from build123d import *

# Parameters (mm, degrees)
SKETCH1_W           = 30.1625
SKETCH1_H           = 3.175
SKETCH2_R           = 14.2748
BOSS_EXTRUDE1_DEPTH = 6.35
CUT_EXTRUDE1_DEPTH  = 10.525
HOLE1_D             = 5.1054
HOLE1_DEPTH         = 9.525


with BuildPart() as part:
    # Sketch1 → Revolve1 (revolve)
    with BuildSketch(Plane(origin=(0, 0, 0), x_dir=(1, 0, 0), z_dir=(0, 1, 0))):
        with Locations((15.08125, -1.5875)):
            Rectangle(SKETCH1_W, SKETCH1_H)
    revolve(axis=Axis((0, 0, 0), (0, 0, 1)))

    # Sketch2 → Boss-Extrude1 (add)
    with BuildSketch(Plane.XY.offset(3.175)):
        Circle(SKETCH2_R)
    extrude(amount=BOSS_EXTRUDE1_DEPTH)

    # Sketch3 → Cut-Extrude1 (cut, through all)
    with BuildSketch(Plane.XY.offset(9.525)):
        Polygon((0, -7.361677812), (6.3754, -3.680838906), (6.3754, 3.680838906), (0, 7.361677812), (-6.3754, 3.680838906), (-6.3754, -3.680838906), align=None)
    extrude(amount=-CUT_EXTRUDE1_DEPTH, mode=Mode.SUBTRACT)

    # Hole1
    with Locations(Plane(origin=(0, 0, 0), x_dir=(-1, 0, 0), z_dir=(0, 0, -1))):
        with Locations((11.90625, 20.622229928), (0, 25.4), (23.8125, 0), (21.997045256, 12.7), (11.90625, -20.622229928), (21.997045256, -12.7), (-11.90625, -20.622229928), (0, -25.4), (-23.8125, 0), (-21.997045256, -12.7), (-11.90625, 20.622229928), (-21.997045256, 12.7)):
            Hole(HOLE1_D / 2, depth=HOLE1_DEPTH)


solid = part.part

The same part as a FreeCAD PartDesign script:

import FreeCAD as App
import Part
import Sketcher
Q = App.Units.Quantity

doc = App.newDocument("Part")
body = doc.addObject("PartDesign::Body", "Body")

# Sketch on XZ plane
sketch1 = body.newObject("Sketcher::SketchObject", "Sketch")
sketch1.AttachmentSupport = (doc.getObject("XZ_Plane"), [""])
sketch1.MapMode = "FlatFace"
sketch1.addGeometry([
    Part.LineSegment(App.Vector(0, 0, 0), App.Vector(0, 3.175, 0)),
    Part.LineSegment(App.Vector(0, 3.175, 0), App.Vector(30.1625, 3.175, 0)),
    Part.LineSegment(App.Vector(30.1625, 3.175, 0), App.Vector(30.1625, 0, 0)),
    Part.LineSegment(App.Vector(30.1625, 0, 0), App.Vector(0, 0, 0)),
], False)
sketch1.addConstraint([
    Sketcher.Constraint("Coincident", 0, 2, 1, 1),
    Sketcher.Constraint("Coincident", 1, 2, 2, 1),
    Sketcher.Constraint("Coincident", 2, 2, 3, 1),
    Sketcher.Constraint("Coincident", 3, 2, 0, 1),
    Sketcher.Constraint("Vertical", 0),
    Sketcher.Constraint("Horizontal", 1),
    Sketcher.Constraint("Vertical", 2),
    Sketcher.Constraint("Horizontal", 3),
    Sketcher.Constraint("Coincident", 3, 2, -1, 1),
    Sketcher.Constraint("DistanceX", 1, 1, 1, 2, Q("1.1875 in")),
    Sketcher.Constraint("DistanceY", 0, 1, 0, 2, Q("0.125 in")),
])
revolution = body.newObject("PartDesign::Revolution", "Revolution")
revolution.Profile = sketch1
revolution.ReferenceAxis = (sketch1, ["V_Axis"])
revolution.Angle = 360

# Sketch on XY plane
sketch2 = body.newObject("Sketcher::SketchObject", "Sketch001")
sketch2.AttachmentSupport = (doc.getObject("XY_Plane"), [""])
sketch2.MapMode = "FlatFace"
sketch2.AttachmentOffset = App.Placement(App.Vector(0, 0, 0.125 * 25.4), App.Rotation())
sketch2.addGeometry(Part.Circle(App.Vector(0, 0, 0), App.Vector(0, 0, 1), 14.2748), False)
sketch2.addConstraint([
    Sketcher.Constraint("Coincident", 0, 3, -1, 1),
    Sketcher.Constraint("Diameter", 0, Q("1.124 in")),
])
pad1 = body.newObject("PartDesign::Pad", "Pad")
pad1.Profile = sketch2
pad1.Length = Q("0.25 in")

# Sketch on XY plane
sketch3 = body.newObject("Sketcher::SketchObject", "Sketch002")
sketch3.AttachmentSupport = (doc.getObject("XY_Plane"), [""])
sketch3.MapMode = "FlatFace"
sketch3.AttachmentOffset = App.Placement(App.Vector(0, 0, 0.375 * 25.4), App.Rotation())
sketch3.addGeometry([
    Part.LineSegment(App.Vector(0, -7.361678, 0), App.Vector(6.3754, -3.680839, 0)),  # 0
    Part.LineSegment(App.Vector(6.3754, -3.680839, 0), App.Vector(6.3754, 3.680839, 0)),  # 1
    Part.LineSegment(App.Vector(6.3754, 3.680839, 0), App.Vector(0, 7.361678, 0)),  # 2
    Part.LineSegment(App.Vector(0, 7.361678, 0), App.Vector(-6.3754, 3.680839, 0)),  # 3
    Part.LineSegment(App.Vector(-6.3754, 3.680839, 0), App.Vector(-6.3754, -3.680839, 0)),  # 4
    Part.LineSegment(App.Vector(-6.3754, -3.680839, 0), App.Vector(0, -7.361678, 0)),  # 5
], False)
sketch3.addConstraint([
    Sketcher.Constraint("Coincident", 0, 2, 1, 1),
    Sketcher.Constraint("Coincident", 1, 2, 2, 1),
    Sketcher.Constraint("Coincident", 2, 2, 3, 1),
    Sketcher.Constraint("Coincident", 3, 2, 4, 1),
    Sketcher.Constraint("Coincident", 4, 2, 5, 1),
    Sketcher.Constraint("Coincident", 5, 2, 0, 1),
    Sketcher.Constraint("Vertical", 1),
    Sketcher.Constraint("Vertical", 4),
    Sketcher.Constraint("Symmetric", 0, 2, 3, 2, -1, 1),
    Sketcher.Constraint("Symmetric", 2, 2, 5, 2, -1, 1),
    Sketcher.Constraint("PointOnObject", 2, 2, -2),
    Sketcher.Constraint("Parallel", 2, 5),
    Sketcher.Constraint("Horizontal", 1, 2, 3, 2),
    Sketcher.Constraint("Angle", 0, Q("30 deg")),
    Sketcher.Constraint("DistanceX", -1, 1, 0, 2, Q("0.251 in")),
    Sketcher.Constraint("DistanceY", 1, 1, 1, 2, Q("7.361678 mm")),
])
pocket1 = body.newObject("PartDesign::Pocket", "Pocket")
pocket1.Profile = sketch3
pocket1.Type = "ThroughAll"

# Sketch on XY plane
sketch4 = body.newObject("Sketcher::SketchObject", "Sketch003")
sketch4.AttachmentSupport = (doc.getObject("XY_Plane"), [""])
sketch4.MapMode = "FlatFace"
sketch4.addGeometry([
    Part.Circle(App.Vector(-11.90625, 20.62223, 0), App.Vector(0, 0, 1), 2.5527),  # 0
    Part.Circle(App.Vector(0, 25.4, 0), App.Vector(0, 0, 1), 2.5527),  # 1
    Part.Circle(App.Vector(-23.8125, 0, 0), App.Vector(0, 0, 1), 2.5527),  # 2
    Part.Circle(App.Vector(-21.997045, 12.7, 0), App.Vector(0, 0, 1), 2.5527),  # 3
    Part.Circle(App.Vector(-11.90625, -20.62223, 0), App.Vector(0, 0, 1), 2.5527),  # 4
    Part.Circle(App.Vector(-21.997045, -12.7, 0), App.Vector(0, 0, 1), 2.5527),  # 5
    Part.Circle(App.Vector(11.90625, -20.62223, 0), App.Vector(0, 0, 1), 2.5527),  # 6
    Part.Circle(App.Vector(0, -25.4, 0), App.Vector(0, 0, 1), 2.5527),  # 7
    Part.Circle(App.Vector(23.8125, 0, 0), App.Vector(0, 0, 1), 2.5527),  # 8
    Part.Circle(App.Vector(21.997045, -12.7, 0), App.Vector(0, 0, 1), 2.5527),  # 9
    Part.Circle(App.Vector(11.90625, 20.62223, 0), App.Vector(0, 0, 1), 2.5527),  # 10
    Part.Circle(App.Vector(21.997045, 12.7, 0), App.Vector(0, 0, 1), 2.5527),  # 11
], False)
sketch4.addConstraint([
    Sketcher.Constraint("Equal", 0, 1),
    Sketcher.Constraint("Equal", 1, 2),
    Sketcher.Constraint("Equal", 2, 3),
    Sketcher.Constraint("Equal", 3, 4),
    Sketcher.Constraint("Equal", 4, 5),
    Sketcher.Constraint("Equal", 5, 6),
    Sketcher.Constraint("Equal", 6, 7),
    Sketcher.Constraint("Equal", 7, 8),
    Sketcher.Constraint("Equal", 8, 9),
    Sketcher.Constraint("Equal", 9, 10),
    Sketcher.Constraint("Equal", 10, 11),
    Sketcher.Constraint("Symmetric", 0, 3, 6, 3, -1, 1),
    Sketcher.Constraint("Symmetric", 1, 3, 7, 3, -1, 1),
    Sketcher.Constraint("Symmetric", 2, 3, 8, 3, -1, 1),
    Sketcher.Constraint("Symmetric", 3, 3, 9, 3, -1, 1),
    Sketcher.Constraint("Symmetric", 4, 3, 10, 3, -1, 1),
    Sketcher.Constraint("Symmetric", 5, 3, 11, 3, -1, 1),
    Sketcher.Constraint("Symmetric", 4, 3, 6, 3, -2),
    Sketcher.Constraint("Symmetric", 5, 3, 9, 3, -2),
    Sketcher.Constraint("PointOnObject", 1, 3, -2),
    Sketcher.Constraint("PointOnObject", 2, 3, -1),
    Sketcher.Constraint("Diameter", 0, Q("0.201 in")),
    Sketcher.Constraint("DistanceY", -1, 1, 1, 3, Q("1 in")),
    Sketcher.Constraint("DistanceY", 5, 3, 3, 3, Q("1 in")),
    Sketcher.Constraint("DistanceX", 0, 3, -1, 1, Q("0.46875 in")),
    Sketcher.Constraint("DistanceX", 2, 3, -1, 1, Q("0.9375 in")),
    Sketcher.Constraint("DistanceY", -1, 1, 0, 3, Q("20.62223 mm")),
    Sketcher.Constraint("DistanceX", 5, 3, 9, 3, Q("43.994091 mm")),
])
doc.recompute()
hole = body.newObject("PartDesign::Hole", "Hole")
hole.Profile = sketch4
hole.ThreadType = "None"
hole.Diameter = Q("0.201 in")
hole.DepthType = "Dimension"
hole.Depth = Q("0.375 in")
hole.DrillPoint = "Flat"
hole.Reversed = True

doc.recompute()
